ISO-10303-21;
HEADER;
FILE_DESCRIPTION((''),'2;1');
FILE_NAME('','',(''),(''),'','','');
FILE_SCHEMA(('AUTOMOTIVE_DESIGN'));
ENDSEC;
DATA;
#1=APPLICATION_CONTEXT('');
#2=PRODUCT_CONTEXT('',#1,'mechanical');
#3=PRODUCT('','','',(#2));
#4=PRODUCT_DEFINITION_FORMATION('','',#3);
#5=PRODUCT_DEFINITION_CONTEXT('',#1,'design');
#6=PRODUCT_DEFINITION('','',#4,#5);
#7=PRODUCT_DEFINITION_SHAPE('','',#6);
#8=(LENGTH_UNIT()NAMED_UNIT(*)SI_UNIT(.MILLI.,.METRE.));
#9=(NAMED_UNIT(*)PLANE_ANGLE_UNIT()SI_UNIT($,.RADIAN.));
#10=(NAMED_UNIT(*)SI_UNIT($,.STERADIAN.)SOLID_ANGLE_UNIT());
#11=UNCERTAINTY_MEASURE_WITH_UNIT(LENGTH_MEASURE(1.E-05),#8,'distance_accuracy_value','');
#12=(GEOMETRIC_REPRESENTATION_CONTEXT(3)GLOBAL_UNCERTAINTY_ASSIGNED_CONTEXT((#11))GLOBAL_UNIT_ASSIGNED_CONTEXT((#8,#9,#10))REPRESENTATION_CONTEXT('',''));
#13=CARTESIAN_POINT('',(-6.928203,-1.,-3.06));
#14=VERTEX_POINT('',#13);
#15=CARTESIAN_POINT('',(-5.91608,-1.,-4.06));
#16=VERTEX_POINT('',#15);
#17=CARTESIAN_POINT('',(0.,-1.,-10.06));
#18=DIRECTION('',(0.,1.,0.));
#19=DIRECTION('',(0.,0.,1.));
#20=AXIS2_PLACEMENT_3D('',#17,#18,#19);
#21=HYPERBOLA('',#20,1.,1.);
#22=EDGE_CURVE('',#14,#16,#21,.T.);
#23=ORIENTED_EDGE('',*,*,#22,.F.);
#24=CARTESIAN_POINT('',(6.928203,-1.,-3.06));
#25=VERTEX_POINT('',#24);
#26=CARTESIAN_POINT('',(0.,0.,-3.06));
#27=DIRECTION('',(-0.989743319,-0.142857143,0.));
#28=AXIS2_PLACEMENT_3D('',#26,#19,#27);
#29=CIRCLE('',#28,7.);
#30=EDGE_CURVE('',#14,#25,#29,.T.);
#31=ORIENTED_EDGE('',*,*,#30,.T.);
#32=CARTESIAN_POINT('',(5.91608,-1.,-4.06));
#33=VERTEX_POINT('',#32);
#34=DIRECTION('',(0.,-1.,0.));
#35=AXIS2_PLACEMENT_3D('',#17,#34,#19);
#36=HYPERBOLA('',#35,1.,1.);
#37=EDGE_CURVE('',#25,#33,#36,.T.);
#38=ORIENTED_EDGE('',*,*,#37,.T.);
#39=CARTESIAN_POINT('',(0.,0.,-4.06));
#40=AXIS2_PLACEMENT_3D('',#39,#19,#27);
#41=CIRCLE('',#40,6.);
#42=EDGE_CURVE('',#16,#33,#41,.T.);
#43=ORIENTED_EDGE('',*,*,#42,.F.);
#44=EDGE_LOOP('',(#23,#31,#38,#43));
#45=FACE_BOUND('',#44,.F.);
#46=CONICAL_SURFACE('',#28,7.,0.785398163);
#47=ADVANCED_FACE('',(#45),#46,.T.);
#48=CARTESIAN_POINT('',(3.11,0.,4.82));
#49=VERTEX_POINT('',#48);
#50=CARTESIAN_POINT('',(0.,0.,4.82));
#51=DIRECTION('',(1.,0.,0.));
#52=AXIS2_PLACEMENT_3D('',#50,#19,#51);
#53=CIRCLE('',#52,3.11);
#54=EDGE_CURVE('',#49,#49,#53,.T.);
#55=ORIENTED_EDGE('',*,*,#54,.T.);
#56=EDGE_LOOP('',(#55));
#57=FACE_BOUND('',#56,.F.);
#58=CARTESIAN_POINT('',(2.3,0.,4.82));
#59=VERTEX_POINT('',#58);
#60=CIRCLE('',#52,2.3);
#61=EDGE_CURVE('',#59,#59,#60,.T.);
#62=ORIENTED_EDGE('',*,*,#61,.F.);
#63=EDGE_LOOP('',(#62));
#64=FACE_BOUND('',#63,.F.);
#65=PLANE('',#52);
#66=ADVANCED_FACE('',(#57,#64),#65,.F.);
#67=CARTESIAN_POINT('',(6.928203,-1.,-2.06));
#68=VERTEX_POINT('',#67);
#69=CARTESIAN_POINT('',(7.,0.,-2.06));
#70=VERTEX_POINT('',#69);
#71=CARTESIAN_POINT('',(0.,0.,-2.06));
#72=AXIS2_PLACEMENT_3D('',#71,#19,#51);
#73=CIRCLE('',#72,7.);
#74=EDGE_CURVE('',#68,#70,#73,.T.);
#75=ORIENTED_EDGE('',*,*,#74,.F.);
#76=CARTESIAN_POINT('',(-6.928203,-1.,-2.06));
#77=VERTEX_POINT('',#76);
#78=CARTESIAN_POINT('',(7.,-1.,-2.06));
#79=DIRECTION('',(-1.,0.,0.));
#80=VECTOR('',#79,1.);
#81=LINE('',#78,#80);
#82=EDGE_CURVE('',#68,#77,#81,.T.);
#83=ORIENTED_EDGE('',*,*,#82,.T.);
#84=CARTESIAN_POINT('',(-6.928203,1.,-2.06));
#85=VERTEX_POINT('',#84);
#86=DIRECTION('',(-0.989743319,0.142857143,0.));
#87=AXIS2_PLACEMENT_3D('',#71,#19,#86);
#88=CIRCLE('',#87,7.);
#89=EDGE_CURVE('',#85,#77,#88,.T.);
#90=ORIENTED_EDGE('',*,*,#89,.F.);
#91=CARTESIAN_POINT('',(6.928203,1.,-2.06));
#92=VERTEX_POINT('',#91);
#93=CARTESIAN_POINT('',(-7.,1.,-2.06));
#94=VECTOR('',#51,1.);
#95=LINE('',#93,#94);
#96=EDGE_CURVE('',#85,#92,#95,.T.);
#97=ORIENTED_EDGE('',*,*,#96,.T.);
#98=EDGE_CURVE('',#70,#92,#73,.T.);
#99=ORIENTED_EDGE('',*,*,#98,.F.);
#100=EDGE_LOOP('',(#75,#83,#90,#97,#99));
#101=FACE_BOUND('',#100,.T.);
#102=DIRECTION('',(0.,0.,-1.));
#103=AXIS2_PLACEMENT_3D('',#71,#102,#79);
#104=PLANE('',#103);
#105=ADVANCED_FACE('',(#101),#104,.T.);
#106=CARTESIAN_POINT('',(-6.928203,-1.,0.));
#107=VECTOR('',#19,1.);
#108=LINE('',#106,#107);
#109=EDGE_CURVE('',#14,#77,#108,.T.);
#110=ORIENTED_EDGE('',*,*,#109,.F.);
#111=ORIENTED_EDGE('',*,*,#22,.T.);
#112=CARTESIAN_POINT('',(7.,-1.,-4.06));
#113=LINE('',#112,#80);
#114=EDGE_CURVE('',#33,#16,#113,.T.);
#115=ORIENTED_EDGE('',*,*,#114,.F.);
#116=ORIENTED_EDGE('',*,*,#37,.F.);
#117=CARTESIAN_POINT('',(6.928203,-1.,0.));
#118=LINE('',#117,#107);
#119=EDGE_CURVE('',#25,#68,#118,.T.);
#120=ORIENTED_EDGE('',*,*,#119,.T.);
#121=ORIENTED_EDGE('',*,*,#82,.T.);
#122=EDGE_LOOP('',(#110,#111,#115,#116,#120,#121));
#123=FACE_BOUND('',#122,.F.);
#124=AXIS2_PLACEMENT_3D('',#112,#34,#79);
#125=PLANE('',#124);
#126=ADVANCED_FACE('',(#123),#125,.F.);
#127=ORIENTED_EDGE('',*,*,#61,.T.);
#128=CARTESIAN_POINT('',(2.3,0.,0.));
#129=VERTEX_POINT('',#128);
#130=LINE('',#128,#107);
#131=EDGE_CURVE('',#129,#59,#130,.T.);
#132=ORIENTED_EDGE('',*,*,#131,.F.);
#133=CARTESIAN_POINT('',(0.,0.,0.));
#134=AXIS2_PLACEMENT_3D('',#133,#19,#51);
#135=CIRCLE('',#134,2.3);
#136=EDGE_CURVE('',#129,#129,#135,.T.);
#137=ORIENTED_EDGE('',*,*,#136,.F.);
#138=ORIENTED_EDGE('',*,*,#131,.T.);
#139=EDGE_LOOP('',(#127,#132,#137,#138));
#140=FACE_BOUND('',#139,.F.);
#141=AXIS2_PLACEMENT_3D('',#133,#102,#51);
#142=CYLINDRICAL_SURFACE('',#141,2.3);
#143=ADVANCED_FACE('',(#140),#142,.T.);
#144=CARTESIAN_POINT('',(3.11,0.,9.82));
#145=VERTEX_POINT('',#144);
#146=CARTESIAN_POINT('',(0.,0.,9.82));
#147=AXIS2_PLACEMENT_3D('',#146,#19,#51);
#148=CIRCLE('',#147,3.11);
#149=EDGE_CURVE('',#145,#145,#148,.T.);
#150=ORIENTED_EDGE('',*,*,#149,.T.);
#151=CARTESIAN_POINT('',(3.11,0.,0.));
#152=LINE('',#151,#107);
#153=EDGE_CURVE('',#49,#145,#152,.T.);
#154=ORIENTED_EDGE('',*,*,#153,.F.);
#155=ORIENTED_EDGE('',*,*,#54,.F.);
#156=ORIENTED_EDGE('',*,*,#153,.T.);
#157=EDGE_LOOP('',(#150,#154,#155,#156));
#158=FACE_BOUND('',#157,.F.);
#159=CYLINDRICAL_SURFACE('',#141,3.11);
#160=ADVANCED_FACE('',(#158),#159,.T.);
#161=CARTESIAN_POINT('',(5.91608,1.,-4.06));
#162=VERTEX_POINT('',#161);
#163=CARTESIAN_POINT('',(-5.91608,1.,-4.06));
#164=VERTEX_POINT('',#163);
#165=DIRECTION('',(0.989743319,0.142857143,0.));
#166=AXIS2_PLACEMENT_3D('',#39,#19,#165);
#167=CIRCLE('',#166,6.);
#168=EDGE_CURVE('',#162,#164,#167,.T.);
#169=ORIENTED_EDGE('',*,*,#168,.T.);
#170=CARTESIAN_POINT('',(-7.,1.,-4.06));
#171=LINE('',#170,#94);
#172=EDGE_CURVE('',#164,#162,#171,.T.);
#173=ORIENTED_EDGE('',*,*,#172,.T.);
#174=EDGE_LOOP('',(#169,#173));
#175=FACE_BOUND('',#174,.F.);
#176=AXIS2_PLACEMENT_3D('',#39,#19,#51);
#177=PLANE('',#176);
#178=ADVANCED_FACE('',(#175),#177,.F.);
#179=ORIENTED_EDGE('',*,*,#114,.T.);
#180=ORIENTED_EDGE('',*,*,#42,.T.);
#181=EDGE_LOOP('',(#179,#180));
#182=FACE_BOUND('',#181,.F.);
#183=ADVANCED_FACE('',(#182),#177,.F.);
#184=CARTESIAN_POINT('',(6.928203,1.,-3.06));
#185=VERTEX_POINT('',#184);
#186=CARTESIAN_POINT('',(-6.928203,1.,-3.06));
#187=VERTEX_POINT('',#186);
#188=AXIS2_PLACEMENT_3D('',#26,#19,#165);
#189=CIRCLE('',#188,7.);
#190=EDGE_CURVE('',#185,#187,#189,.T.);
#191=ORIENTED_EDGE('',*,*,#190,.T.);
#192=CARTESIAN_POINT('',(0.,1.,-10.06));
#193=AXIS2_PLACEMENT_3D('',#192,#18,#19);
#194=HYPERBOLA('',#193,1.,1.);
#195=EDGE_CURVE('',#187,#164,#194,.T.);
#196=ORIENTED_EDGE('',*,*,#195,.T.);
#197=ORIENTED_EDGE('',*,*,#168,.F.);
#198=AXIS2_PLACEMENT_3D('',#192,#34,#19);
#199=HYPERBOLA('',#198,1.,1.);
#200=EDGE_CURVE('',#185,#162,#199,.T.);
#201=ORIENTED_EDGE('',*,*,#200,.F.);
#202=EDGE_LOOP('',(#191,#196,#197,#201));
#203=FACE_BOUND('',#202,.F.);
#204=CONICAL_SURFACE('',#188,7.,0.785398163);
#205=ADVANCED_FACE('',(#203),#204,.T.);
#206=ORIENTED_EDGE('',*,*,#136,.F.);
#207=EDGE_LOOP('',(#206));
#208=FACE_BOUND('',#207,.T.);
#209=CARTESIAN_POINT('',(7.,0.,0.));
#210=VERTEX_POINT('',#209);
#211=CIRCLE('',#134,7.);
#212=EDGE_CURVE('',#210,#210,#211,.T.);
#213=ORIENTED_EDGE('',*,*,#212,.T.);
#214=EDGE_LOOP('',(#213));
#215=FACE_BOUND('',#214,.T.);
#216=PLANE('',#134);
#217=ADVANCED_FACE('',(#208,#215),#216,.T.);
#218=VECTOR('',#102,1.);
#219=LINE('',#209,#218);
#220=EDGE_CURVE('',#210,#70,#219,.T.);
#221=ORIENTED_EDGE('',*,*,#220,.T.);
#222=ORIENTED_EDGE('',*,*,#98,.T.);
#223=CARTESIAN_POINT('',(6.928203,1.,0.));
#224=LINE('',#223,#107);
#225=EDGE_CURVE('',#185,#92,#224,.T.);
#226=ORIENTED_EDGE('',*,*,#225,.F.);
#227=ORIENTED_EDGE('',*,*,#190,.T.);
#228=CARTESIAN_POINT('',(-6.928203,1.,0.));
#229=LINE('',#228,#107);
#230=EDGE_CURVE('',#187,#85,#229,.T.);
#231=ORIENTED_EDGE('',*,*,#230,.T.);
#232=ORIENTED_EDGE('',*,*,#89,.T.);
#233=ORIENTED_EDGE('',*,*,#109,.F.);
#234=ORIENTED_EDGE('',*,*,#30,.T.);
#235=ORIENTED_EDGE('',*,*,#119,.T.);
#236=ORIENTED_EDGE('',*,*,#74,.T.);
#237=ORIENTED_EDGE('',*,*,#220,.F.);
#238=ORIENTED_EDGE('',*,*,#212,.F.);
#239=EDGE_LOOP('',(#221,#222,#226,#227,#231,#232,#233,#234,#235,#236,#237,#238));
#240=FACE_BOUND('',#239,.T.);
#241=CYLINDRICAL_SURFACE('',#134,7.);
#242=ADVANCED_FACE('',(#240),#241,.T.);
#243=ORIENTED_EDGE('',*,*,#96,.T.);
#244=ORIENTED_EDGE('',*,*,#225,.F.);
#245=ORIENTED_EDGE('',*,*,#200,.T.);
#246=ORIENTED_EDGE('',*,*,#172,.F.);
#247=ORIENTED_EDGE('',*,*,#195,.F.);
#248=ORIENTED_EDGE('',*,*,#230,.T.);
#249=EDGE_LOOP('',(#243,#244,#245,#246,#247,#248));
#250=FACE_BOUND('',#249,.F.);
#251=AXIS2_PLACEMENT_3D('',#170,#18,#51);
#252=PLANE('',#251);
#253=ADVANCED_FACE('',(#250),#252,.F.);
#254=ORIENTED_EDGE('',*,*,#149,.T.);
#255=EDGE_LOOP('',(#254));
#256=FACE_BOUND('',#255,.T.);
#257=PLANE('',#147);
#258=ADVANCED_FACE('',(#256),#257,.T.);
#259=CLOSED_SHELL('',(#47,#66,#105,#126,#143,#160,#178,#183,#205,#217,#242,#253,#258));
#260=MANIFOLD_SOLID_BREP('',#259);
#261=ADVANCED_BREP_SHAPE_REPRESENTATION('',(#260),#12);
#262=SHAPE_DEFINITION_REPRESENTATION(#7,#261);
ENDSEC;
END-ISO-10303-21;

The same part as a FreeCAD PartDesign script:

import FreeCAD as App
import Part
import Sketcher


def edges_at(feature, points):
    """Names of the edges that pass closest to the given points."""
    edges = feature.Shape.Edges
    near = lambda p: min(range(len(edges)), key=lambda i: edges[i].distToShape(Part.Vertex(*p))[0])
    return sorted({f"Edge{near(p) + 1}" for p in points})

doc = App.newDocument("Part")
body = doc.addObject("PartDesign::Body", "Body")

# Sketch on XY plane
sketch1 = body.newObject("Sketcher::SketchObject", "Sketch")
sketch1.AttachmentSupport = (doc.getObject("XY_Plane"), [""])
sketch1.MapMode = "FlatFace"
sketch1.addGeometry(Part.Circle(App.Vector(0, 0, 0), App.Vector(0, 0, 1), 7), False)
sketch1.addConstraint([
    Sketcher.Constraint("Coincident", 0, 3, -1, 1),
    Sketcher.Constraint("Diameter", 0, 14.0),
])
pad1 = body.newObject("PartDesign::Pad", "Pad")
pad1.Profile = sketch1
pad1.Length = 4.06
pad1.Reversed = True

# Sketch on XY plane
sketch2 = body.newObject("Sketcher::SketchObject", "Sketch001")
sketch2.AttachmentSupport = (doc.getObject("XY_Plane"), [""])
sketch2.MapMode = "FlatFace"
sketch2.addGeometry(Part.Circle(App.Vector(0, 0, 0), App.Vector(0, 0, 1), 3.1), False)
sketch2.addConstraint([
    Sketcher.Constraint("Coincident", 0, 3, -1, 1),
    Sketcher.Constraint("Diameter", 0, 6.22),
])
pad2 = body.newObject("PartDesign::Pad", "Pad001")
pad2.Profile = sketch2
pad2.Length = 9.82

# Sketch on XY plane
sketch3 = body.newObject("Sketcher::SketchObject", "Sketch002")
sketch3.AttachmentSupport = (doc.getObject("XY_Plane"), [""])
sketch3.MapMode = "FlatFace"
sketch3.addGeometry([
    Part.Circle(App.Vector(0, 0, 0), App.Vector(0, 0, 1), 3.1),
    Part.Circle(App.Vector(0, 0, 0), App.Vector(0, 0, 1), 2.3),
], False)
sketch3.addConstraint([
    Sketcher.Constraint("Coincident", 0, 3, -1, 1),
    Sketcher.Constraint("Coincident", 1, 3, -1, 1),
    Sketcher.Constraint("Diameter", 1, 4.6),
    Sketcher.Constraint("Diameter", 0, 6.22),
])
pocket1 = body.newObject("PartDesign::Pocket", "Pocket")
pocket1.Profile = sketch3
pocket1.Length = 4.82
pocket1.Reversed = True

# Sketch on XY plane
sketch4 = body.newObject("Sketcher::SketchObject", "Sketch003")
sketch4.AttachmentSupport = (doc.getObject("XY_Plane"), [""])
sketch4.MapMode = "FlatFace"
sketch4.AttachmentOffset = App.Placement(App.Vector(0, 0, -4.06), App.Rotation())
sketch4.addGeometry([
    Part.LineSegment(App.Vector(-7, -1, 0), App.Vector(-7, 1, 0)),
    Part.LineSegment(App.Vector(-7, 1, 0), App.Vector(7, 1, 0)),
    Part.LineSegment(App.Vector(7, 1, 0), App.Vector(7, -1, 0)),
    Part.LineSegment(App.Vector(7, -1, 0), App.Vector(-7, -1, 0)),
], False)
sketch4.addConstraint([
    Sketcher.Constraint("Coincident", 0, 2, 1, 1),
    Sketcher.Constraint("Coincident", 1, 2, 2, 1),
    Sketcher.Constraint("Coincident", 2, 2, 3, 1),
    Sketcher.Constraint("Coincident", 3, 2, 0, 1),
    Sketcher.Constraint("Vertical", 0),
    Sketcher.Constraint("Horizontal", 1),
    Sketcher.Constraint("Vertical", 2),
    Sketcher.Constraint("Horizontal", 3),
    Sketcher.Constraint("Symmetric", 0, 2, 2, 2, -1, 1),
    Sketcher.Constraint("DistanceY", 0, 1, 0, 2, 2.0),
    Sketcher.Constraint("DistanceX", 1, 1, 1, 2, 14.0),
])
pocket2 = body.newObject("PartDesign::Pocket", "Pocket001")
pocket2.Profile = sketch4
pocket2.Length = 2
pocket2.Reversed = True
doc.recompute()

chamfer = body.newObject("PartDesign::Chamfer", "Chamfer")
chamfer.Base = (pocket2, edges_at(pocket2, [(0, -7, -4.06), (0, 7, -4.06)]))
chamfer.Size = 1

doc.recompute()
